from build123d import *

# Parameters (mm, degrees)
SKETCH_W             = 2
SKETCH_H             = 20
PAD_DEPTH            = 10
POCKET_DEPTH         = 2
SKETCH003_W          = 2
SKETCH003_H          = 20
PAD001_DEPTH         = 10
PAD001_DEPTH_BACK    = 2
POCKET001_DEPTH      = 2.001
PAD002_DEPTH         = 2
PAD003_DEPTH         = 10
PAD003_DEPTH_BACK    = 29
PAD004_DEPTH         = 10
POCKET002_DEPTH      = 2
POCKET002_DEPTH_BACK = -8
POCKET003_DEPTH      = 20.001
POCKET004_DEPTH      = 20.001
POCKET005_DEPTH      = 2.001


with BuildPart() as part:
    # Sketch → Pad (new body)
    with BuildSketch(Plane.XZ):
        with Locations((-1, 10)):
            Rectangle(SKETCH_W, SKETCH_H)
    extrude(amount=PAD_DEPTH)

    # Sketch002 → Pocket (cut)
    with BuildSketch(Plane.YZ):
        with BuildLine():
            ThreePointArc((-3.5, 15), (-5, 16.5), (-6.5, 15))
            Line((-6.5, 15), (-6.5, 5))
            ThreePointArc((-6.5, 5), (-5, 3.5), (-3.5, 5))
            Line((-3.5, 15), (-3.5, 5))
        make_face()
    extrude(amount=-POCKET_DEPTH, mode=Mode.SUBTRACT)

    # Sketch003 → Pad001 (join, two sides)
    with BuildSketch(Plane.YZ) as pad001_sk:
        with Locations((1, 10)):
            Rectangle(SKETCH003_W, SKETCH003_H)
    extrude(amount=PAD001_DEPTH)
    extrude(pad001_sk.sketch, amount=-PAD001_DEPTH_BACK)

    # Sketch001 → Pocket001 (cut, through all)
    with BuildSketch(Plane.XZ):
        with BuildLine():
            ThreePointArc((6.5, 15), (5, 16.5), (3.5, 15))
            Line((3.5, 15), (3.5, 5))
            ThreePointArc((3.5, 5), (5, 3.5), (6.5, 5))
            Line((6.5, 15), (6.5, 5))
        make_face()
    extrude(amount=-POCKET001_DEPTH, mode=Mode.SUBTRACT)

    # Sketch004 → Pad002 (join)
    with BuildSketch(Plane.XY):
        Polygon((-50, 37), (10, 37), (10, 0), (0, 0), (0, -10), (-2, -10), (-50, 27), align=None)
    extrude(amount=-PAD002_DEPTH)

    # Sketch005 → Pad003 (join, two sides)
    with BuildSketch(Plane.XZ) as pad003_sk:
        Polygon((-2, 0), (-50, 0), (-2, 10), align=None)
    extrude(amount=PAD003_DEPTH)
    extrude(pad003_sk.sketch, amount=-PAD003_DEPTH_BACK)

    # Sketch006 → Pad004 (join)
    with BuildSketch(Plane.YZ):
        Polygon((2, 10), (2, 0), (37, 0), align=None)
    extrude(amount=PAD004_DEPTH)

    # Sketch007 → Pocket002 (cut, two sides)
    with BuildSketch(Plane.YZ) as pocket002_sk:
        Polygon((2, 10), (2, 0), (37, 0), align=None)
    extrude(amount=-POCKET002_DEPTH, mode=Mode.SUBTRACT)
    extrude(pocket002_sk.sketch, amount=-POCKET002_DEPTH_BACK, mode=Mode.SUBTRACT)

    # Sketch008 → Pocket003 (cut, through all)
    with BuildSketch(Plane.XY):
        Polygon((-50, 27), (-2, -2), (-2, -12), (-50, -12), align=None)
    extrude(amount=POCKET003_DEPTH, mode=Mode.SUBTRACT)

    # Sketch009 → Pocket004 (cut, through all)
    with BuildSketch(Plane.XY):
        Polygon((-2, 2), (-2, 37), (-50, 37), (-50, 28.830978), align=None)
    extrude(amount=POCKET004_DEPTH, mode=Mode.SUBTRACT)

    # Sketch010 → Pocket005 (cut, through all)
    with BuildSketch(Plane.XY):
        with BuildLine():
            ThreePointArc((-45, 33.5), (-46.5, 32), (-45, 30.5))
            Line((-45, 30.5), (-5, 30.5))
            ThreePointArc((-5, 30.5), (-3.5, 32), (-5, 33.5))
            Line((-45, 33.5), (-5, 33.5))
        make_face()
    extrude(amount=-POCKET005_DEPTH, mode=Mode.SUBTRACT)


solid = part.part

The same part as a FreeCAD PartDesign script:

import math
import FreeCAD as App
import Part
import Sketcher
from FreeCAD import Vector


def add_polygon(sketch, points):
    """Adds a closed chain of lines whose ends are joined by coincident constraints."""
    first, n = sketch.GeometryCount, len(points)
    for a, b in zip(points, points[1:] + points[:1]):
        sketch.addGeometry(Part.LineSegment(App.Vector(*a, 0), App.Vector(*b, 0)), False)
    for i in range(n):
        sketch.addConstraint(Sketcher.Constraint("Coincident", first + i, 2, first + (i + 1) % n, 1))

doc = App.newDocument("Part")
body = doc.addObject("PartDesign::Body", "Body")

# Sketch on XZ plane
sketch1 = body.newObject("Sketcher::SketchObject", "Sketch")
sketch1.AttachmentSupport = (doc.getObject("XZ_Plane"), [""])
sketch1.MapMode = "FlatFace"
add_polygon(sketch1, [(-2, 20), (-2, 0), (0, 0), (0, 20)])  # lines 0-3
sketch1.addConstraint([
    Sketcher.Constraint("Vertical", 0),
    Sketcher.Constraint("Horizontal", 1),
    Sketcher.Constraint("Vertical", 2),
    Sketcher.Constraint("Horizontal", 3),
    Sketcher.Constraint("Coincident", 1, 2, -1, 1),
    Sketcher.Constraint("DistanceX", 1, 1, 1, 2, 2.0),
    Sketcher.Constraint("DistanceY", 0, 2, 0, 1, 20.0),
])
pad1 = body.newObject("PartDesign::Pad", "Pad")
pad1.Profile = sketch1
pad1.Length = 10

# Sketch on YZ plane
sketch2 = body.newObject("Sketcher::SketchObject", "Sketch001")
sketch2.AttachmentSupport = (doc.getObject("YZ_Plane"), [""])
sketch2.MapMode = "FlatFace"
sketch2.addGeometry([
    Part.ArcOfCircle(Part.Circle(Vector(-5, 15, 0), Vector(0, 0, 1), 1.5), math.radians(0), math.radians(180)),
    Part.LineSegment(Vector(-6.5, 15, 0), Vector(-6.5, 5, 0)),
    Part.ArcOfCircle(Part.Circle(Vector(-5, 5, 0), Vector(0, 0, 1), 1.5), math.radians(180), math.radians(360)),
    Part.LineSegment(Vector(-3.5, 5, 0), Vector(-3.5, 15, 0)),
], False)
sketch2.addConstraint([
    Sketcher.Constraint("Tangent", 0, 2, 1, 1),
    Sketcher.Constraint("Tangent", 1, 2, 2, 1),
    Sketcher.Constraint("Tangent", 2, 2, 3, 1),
    Sketcher.Constraint("Tangent", 3, 2, 0, 1),
    Sketcher.Constraint("Vertical", 1),
    Sketcher.Constraint("Vertical", 3),
    Sketcher.Constraint("Radius", 0, 1.5),
    Sketcher.Constraint("DistanceY", 1, 2, 1, 1, 10.0),
    Sketcher.Constraint("DistanceX", 0, 3, -1, 1, 5.0),
    Sketcher.Constraint("DistanceY", -1, 1, 0, 3, 15.0),
])
pocket1 = body.newObject("PartDesign::Pocket", "Pocket")
pocket1.Profile = sketch2
pocket1.Length = 2

# Sketch on YZ plane
sketch3 = body.newObject("Sketcher::SketchObject", "Sketch002")
sketch3.AttachmentSupport = (doc.getObject("YZ_Plane"), [""])
sketch3.MapMode = "FlatFace"
add_polygon(sketch3, [(0, 20), (0, 0), (2, 0), (2, 20)])  # lines 0-3
sketch3.addConstraint([
    Sketcher.Constraint("Vertical", 0),
    Sketcher.Constraint("Horizontal", 1),
    Sketcher.Constraint("Vertical", 2),
    Sketcher.Constraint("Horizontal", 3),
    Sketcher.Constraint("Coincident", 0, 2, -1, 1),
    Sketcher.Constraint("DistanceX", 1, 1, 1, 2, 2.0),
    Sketcher.Constraint("DistanceY", 0, 2, 0, 1, 20.0),
])
pad2 = body.newObject("PartDesign::Pad", "Pad001")
pad2.Profile = sketch3
pad2.Type = "TwoLengths"
pad2.Length = 10
pad2.Length2 = 2

# Sketch on XZ plane
sketch4 = body.newObject("Sketcher::SketchObject", "Sketch003")
sketch4.AttachmentSupport = (doc.getObject("XZ_Plane"), [""])
sketch4.MapMode = "FlatFace"
sketch4.addGeometry([
    Part.ArcOfCircle(Part.Circle(Vector(5, 15, 0), Vector(0, 0, 1), 1.5), math.radians(0), math.radians(180)),
    Part.LineSegment(Vector(3.5, 15, 0), Vector(3.5, 5, 0)),
    Part.ArcOfCircle(Part.Circle(Vector(5, 5, 0), Vector(0, 0, 1), 1.5), math.radians(180), math.radians(360)),
    Part.LineSegment(Vector(6.5, 5, 0), Vector(6.5, 15, 0)),
], False)
sketch4.addConstraint([
    Sketcher.Constraint("Tangent", 0, 2, 1, 1),
    Sketcher.Constraint("Tangent", 1, 2, 2, 1),
    Sketcher.Constraint("Tangent", 2, 2, 3, 1),
    Sketcher.Constraint("Tangent", 3, 2, 0, 1),
    Sketcher.Constraint("Vertical", 1),
    Sketcher.Constraint("Vertical", 3),
    Sketcher.Constraint("Radius", 0, 1.5),
    Sketcher.Constraint("DistanceY", 1, 2, 1, 1, 10.0),
    Sketcher.Constraint("DistanceX", -1, 1, 0, 3, 5.0),
    Sketcher.Constraint("DistanceY", -1, 1, 0, 3, 15.0),
])
pocket2 = body.newObject("PartDesign::Pocket", "Pocket001")
pocket2.Profile = sketch4
pocket2.Type = "ThroughAll"

# Sketch on XY plane
sketch5 = body.newObject("Sketcher::SketchObject", "Sketch004")
sketch5.AttachmentSupport = (doc.getObject("XY_Plane"), [""])
sketch5.MapMode = "FlatFace"
add_polygon(sketch5, [(10, 37), (-50, 37), (-50, 27), (-2, -10), (0, -10), (0, 0), (10, 0)])  # lines 0-6
sketch5.addConstraint([
    Sketcher.Constraint("Horizontal", 0),
    Sketcher.Constraint("Vertical", 1),
    Sketcher.Constraint("Horizontal", 3),
    Sketcher.Constraint("Vertical", 4),
    Sketcher.Constraint("Horizontal", 5),
    Sketcher.Constraint("Vertical", 6),
    Sketcher.Constraint("Coincident", 4, 2, -1, 1),
    Sketcher.Constraint("Equal", 5, 1),
    Sketcher.Constraint("Equal", 1, 4),
    Sketcher.Constraint("DistanceX", 0, 2, 0, 1, 60.0),
    Sketcher.Constraint("DistanceX", 3, 1, 3, 2, 2.0),
    Sketcher.Constraint("DistanceX", 5, 1, 5, 2, 10.0),
    Sketcher.Constraint("DistanceY", 6, 1, 6, 2, 37.0),
])
pad3 = body.newObject("PartDesign::Pad", "Pad002")
pad3.Profile = sketch5
pad3.Length = 2
pad3.Reversed = True

# Sketch on XZ plane
sketch6 = body.newObject("Sketcher::SketchObject", "Sketch005")
sketch6.AttachmentSupport = (doc.getObject("XZ_Plane"), [""])
sketch6.MapMode = "FlatFace"
add_polygon(sketch6, [(-50, 0), (-2, 0), (-2, 10)])  # lines 0-2
sketch6.addConstraint([
    Sketcher.Constraint("Horizontal", 0),
    Sketcher.Constraint("Vertical", 1),
    Sketcher.Constraint("PointOnObject", 0, 2, -1),
    Sketcher.Constraint("DistanceX", 0, 1, 0, 2, 48.0),
    Sketcher.Constraint("DistanceY", 1, 1, 1, 2, 10.0),
    Sketcher.Constraint("DistanceX", 0, 2, -1, 1, 2.0),
])
pad4 = body.newObject("PartDesign::Pad", "Pad003")
pad4.Profile = sketch6
pad4.Type = "TwoLengths"
pad4.Length = 10
pad4.Length2 = 29

# Sketch on YZ plane
sketch7 = body.newObject("Sketcher::SketchObject", "Sketch006")
sketch7.AttachmentSupport = (doc.getObject("YZ_Plane"), [""])
sketch7.MapMode = "FlatFace"
add_polygon(sketch7, [(2, 10), (2, 0), (37, 0)])  # lines 0-2
sketch7.addConstraint([
    Sketcher.Constraint("Vertical", 0),
    Sketcher.Constraint("Horizontal", 1),
    Sketcher.Constraint("PointOnObject", 0, 2, -1),
    Sketcher.Constraint("DistanceX", 1, 1, 1, 2, 35.0),
    Sketcher.Constraint("DistanceY", 0, 2, 0, 1, 10.0),
    Sketcher.Constraint("DistanceX", -1, 1, 0, 2, 2.0),
])
pad5 = body.newObject("PartDesign::Pad", "Pad004")
pad5.Profile = sketch7
pad5.Length = 10

# Sketch on YZ plane
sketch8 = body.newObject("Sketcher::SketchObject", "Sketch007")
sketch8.AttachmentSupport = (doc.getObject("YZ_Plane"), [""])
sketch8.MapMode = "FlatFace"
add_polygon(sketch8, [(2, 10), (2, 0), (37, 0)])  # lines 0-2
sketch8.addConstraint([
    Sketcher.Constraint("Vertical", 0),
    Sketcher.Constraint("Horizontal", 1),
    Sketcher.Constraint("PointOnObject", 0, 2, -1),
    Sketcher.Constraint("DistanceX", 1, 1, 1, 2, 35.0),
    Sketcher.Constraint("DistanceY", 0, 2, 0, 1, 10.0),
    Sketcher.Constraint("DistanceX", -1, 1, 0, 2, 2.0),
])
pocket3 = body.newObject("PartDesign::Pocket", "Pocket002")
pocket3.Profile = sketch8
pocket3.Type = "TwoLengths"
pocket3.Length = 2
pocket3.Length2 = 8

# Sketch on XY plane
sketch9 = body.newObject("Sketcher::SketchObject", "Sketch008")
sketch9.AttachmentSupport = (doc.getObject("XY_Plane"), [""])
sketch9.MapMode = "FlatFace"
add_polygon(sketch9, [(-2, -2), (-50, 27), (-50, -12), (-2, -12)])  # lines 0-3
sketch9.addConstraint([
    Sketcher.Constraint("Vertical", 1),
    Sketcher.Constraint("Horizontal", 2),
    Sketcher.Constraint("Vertical", 3),
    Sketcher.Constraint("DistanceX", 2, 1, 2, 2, 48.0),
    Sketcher.Constraint("DistanceY", 1, 2, 1, 1, 39.0),
    Sketcher.Constraint("DistanceY", 3, 1, 3, 2, 10.0),
    Sketcher.Constraint("DistanceX", 0, 2, -1, 1, 50.0),
    Sketcher.Constraint("DistanceY", -1, 1, 0, 2, 27.0),
])
pocket4 = body.newObject("PartDesign::Pocket", "Pocket003")
pocket4.Profile = sketch9
pocket4.Type = "ThroughAll"
pocket4.Reversed = True

# Sketch on XY plane
sketch10 = body.newObject("Sketcher::SketchObject", "Sketch009")
sketch10.AttachmentSupport = (doc.getObject("XY_Plane"), [""])
sketch10.MapMode = "FlatFace"
add_polygon(sketch10, [(-2, 2), (-2, 37), (-50, 37), (-50, 29)])  # lines 0-3
sketch10.addConstraint([
    Sketcher.Constraint("Vertical", 0),
    Sketcher.Constraint("Horizontal", 1),
    Sketcher.Constraint("Vertical", 2),
    Sketcher.Constraint("DistanceX", 1, 2, 1, 1, 48.0),
    Sketcher.Constraint("DistanceY", 0, 1, 0, 2, 35.0),
    Sketcher.Constraint("DistanceX", 0, 2, -1, 1, 2.0),
    Sketcher.Constraint("DistanceY", -1, 1, 0, 2, 37.0),
    Sketcher.Constraint("DistanceY", 2, 2, 2, 1, 8.169022),
])
pocket5 = body.newObject("PartDesign::Pocket", "Pocket004")
pocket5.Profile = sketch10
pocket5.Type = "ThroughAll"
pocket5.Reversed = True

# Sketch on XY plane
sketch11 = body.newObject("Sketcher::SketchObject", "Sketch010")
sketch11.AttachmentSupport = (doc.getObject("XY_Plane"), [""])
sketch11.MapMode = "FlatFace"
sketch11.addGeometry([
    Part.ArcOfCircle(Part.Circle(Vector(-45, 32, 0), Vector(0, 0, 1), 1.5), math.radians(90), math.radians(270)),
    Part.LineSegment(Vector(-45, 30.5, 0), Vector(-5, 30.5, 0)),
    Part.ArcOfCircle(Part.Circle(Vector(-5, 32, 0), Vector(0, 0, 1), 1.5), math.radians(-90), math.radians(90)),
    Part.LineSegment(Vector(-5, 33.5, 0), Vector(-45, 33.5, 0)),
], False)
sketch11.addConstraint([
    Sketcher.Constraint("Tangent", 0, 2, 1, 1),
    Sketcher.Constraint("Tangent", 1, 2, 2, 1),
    Sketcher.Constraint("Tangent", 2, 2, 3, 1),
    Sketcher.Constraint("Tangent", 3, 2, 0, 1),
    Sketcher.Constraint("Horizontal", 1),
    Sketcher.Constraint("Horizontal", 3),
    Sketcher.Constraint("Radius", 0, 1.5),
    Sketcher.Constraint("DistanceX", 1, 1, 1, 2, 40.0),
    Sketcher.Constraint("DistanceX", 0, 3, -1, 1, 45.0),
    Sketcher.Constraint("DistanceY", -1, 1, 0, 3, 32.0),
])
pocket6 = body.newObject("PartDesign::Pocket", "Pocket005")
pocket6.Profile = sketch11
pocket6.Type = "ThroughAll"

doc.recompute()
